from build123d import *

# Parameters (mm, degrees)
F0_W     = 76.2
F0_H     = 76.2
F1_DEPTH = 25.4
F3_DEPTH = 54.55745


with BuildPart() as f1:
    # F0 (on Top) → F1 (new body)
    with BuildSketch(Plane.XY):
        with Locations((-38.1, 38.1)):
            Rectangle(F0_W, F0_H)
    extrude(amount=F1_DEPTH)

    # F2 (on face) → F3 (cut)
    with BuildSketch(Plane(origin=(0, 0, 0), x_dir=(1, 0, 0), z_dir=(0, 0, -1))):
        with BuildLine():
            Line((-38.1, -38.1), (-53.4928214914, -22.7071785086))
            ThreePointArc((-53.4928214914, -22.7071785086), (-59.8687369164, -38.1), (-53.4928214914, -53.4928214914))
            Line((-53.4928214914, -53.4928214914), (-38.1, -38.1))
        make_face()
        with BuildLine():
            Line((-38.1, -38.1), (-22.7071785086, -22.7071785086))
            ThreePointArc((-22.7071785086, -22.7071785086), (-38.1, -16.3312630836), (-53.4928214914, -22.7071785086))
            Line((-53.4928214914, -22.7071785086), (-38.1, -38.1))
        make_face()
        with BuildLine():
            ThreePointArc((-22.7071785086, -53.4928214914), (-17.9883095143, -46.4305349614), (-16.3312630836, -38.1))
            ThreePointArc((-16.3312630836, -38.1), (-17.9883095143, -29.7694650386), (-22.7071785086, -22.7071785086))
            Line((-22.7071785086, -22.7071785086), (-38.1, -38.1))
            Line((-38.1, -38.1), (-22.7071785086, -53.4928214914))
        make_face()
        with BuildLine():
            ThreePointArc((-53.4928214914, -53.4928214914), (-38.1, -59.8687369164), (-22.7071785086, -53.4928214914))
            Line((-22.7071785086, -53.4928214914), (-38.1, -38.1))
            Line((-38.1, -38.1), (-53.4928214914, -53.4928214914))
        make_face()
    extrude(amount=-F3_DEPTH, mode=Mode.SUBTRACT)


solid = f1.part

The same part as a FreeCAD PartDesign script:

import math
import FreeCAD as App
import Part
import Sketcher

V = App.Vector
Q = App.Units.Quantity


def add_polygon(sketch, points):
    """Adds a closed chain of lines whose ends are joined by coincident constraints."""
    first, n = sketch.GeometryCount, len(points)
    for a, b in zip(points, points[1:] + points[:1]):
        sketch.addGeometry(Part.LineSegment(App.Vector(*a, 0), App.Vector(*b, 0)), False)
    for i in range(n):
        sketch.addConstraint(Sketcher.Constraint("Coincident", first + i, 2, first + (i + 1) % n, 1))

doc = App.newDocument("Part")
body = doc.addObject("PartDesign::Body", "Body")

sketch1 = doc.addObject("Sketcher::SketchObject", "Sketch")
body.addObject(sketch1)
sketch1.AttachmentSupport = (doc.XY_Plane, [""])
sketch1.MapMode = "FlatFace"
add_polygon(sketch1, [(-76, 76), (-76, 0), (0, 0), (0, 76)])
sketch1.addConstraint(Sketcher.Constraint("Vertical", 0))
sketch1.addConstraint(Sketcher.Constraint("Horizontal", 1))
sketch1.addConstraint(Sketcher.Constraint("Vertical", 2))
sketch1.addConstraint(Sketcher.Constraint("Horizontal", 3))
sketch1.addConstraint(Sketcher.Constraint("Coincident", 1, 2, -1, 1))
sketch1.addConstraint(Sketcher.Constraint("Equal", 3, 0))
sketch1.addConstraint(Sketcher.Constraint("DistanceX", 1, 1, 1, 2, Q("3 in")))
pad1 = doc.addObject("PartDesign::Pad", "Pad")
body.addObject(pad1)
pad1.Profile = sketch1
pad1.Length = Q("1 in")

sketch2 = doc.addObject("Sketcher::SketchObject", "Sketch001")
body.addObject(sketch2)
sketch2.AttachmentSupport = (doc.XY_Plane, [""])
sketch2.MapMode = "FlatFace"
sketch2.addGeometry(Part.ArcOfCircle(Part.Circle(V(-38, 38, 0), V(0, 0, 1), 22), math.radians(135), math.radians(225)), False)
sketch2.addGeometry(Part.ArcOfCircle(Part.Circle(V(-38, 38, 0), V(0, 0, 1), 22), math.radians(45), math.radians(135)), False)
sketch2.addGeometry(Part.ArcOfCircle(Part.Circle(V(-38, 38, 0), V(0, 0, 1), 22), math.radians(0), math.radians(45)), False)
sketch2.addGeometry(Part.ArcOfCircle(Part.Circle(V(-38, 38, 0), V(0, 0, 1), 22), math.radians(-45), math.radians(0)), False)
sketch2.addGeometry(Part.ArcOfCircle(Part.Circle(V(-38, 38, 0), V(0, 0, 1), 22), math.radians(-135), math.radians(-45)), False)
sketch2.addConstraint(Sketcher.Constraint("Tangent", 0, 1, 1, 2))
sketch2.addConstraint(Sketcher.Constraint("Tangent", 1, 1, 2, 2))
sketch2.addConstraint(Sketcher.Constraint("Tangent", 2, 1, 3, 2))
sketch2.addConstraint(Sketcher.Constraint("Tangent", 3, 1, 4, 2))
sketch2.addConstraint(Sketcher.Constraint("Tangent", 4, 1, 0, 2))
sketch2.addConstraint(Sketcher.Constraint("Coincident", 2, 3, 0, 3))
sketch2.addConstraint(Sketcher.Constraint("Horizontal", 0, 1, 1, 1))
sketch2.addConstraint(Sketcher.Constraint("Horizontal", 4, 3, 2, 1))
sketch2.addConstraint(Sketcher.Constraint("Horizontal", 3, 1, 4, 1))
sketch2.addConstraint(Sketcher.Constraint("Vertical", 1, 1, 3, 1))
sketch2.addConstraint(Sketcher.Constraint("DistanceX", 0, 3, -1, 1, Q("1.5 in")))
sketch2.addConstraint(Sketcher.Constraint("DistanceY", -1, 1, 0, 3, Q("1.5 in")))
sketch2.addConstraint(Sketcher.Constraint("Radius", 0, Q("21.768737 mm")))
sketch2.addConstraint(Sketcher.Constraint("DistanceX", 0, 1, -1, 1, Q("53.492821 mm")))
pocket1 = doc.addObject("PartDesign::Pocket", "Pocket")
body.addObject(pocket1)
pocket1.Profile = sketch2
pocket1.Length = 54.55745
pocket1.Reversed = True

doc.recompute()
